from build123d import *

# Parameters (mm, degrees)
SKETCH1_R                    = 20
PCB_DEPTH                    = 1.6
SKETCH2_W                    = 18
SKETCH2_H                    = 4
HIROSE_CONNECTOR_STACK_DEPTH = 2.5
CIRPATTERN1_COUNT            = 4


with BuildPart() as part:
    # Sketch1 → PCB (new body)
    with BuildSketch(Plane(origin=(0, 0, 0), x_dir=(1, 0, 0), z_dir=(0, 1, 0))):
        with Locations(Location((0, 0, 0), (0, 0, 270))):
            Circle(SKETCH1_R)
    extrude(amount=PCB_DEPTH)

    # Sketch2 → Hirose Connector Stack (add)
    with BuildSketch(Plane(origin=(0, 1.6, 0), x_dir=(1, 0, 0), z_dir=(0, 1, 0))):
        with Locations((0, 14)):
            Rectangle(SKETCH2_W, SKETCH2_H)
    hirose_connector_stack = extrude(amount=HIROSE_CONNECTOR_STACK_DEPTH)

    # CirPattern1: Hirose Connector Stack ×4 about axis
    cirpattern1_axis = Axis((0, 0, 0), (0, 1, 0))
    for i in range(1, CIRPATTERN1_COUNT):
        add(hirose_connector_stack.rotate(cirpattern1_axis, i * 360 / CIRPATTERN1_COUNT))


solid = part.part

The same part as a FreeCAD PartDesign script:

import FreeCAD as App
import Part
import Sketcher

V = App.Vector
Q = App.Units.Quantity


def add_polygon(sketch, points):
    """Adds a closed chain of lines whose ends are joined by coincident constraints."""
    first, n = sketch.GeometryCount, len(points)
    for a, b in zip(points, points[1:] + points[:1]):
        sketch.addGeometry(Part.LineSegment(App.Vector(*a, 0), App.Vector(*b, 0)), False)
    for i in range(n):
        sketch.addConstraint(Sketcher.Constraint("Coincident", first + i, 2, first + (i + 1) % n, 1))

doc = App.newDocument("Part")
body = doc.addObject("PartDesign::Body", "Body")

# Sketch on XZ plane
sketch1 = doc.addObject("Sketcher::SketchObject", "Sketch")
body.addObject(sketch1)
sketch1.AttachmentSupport = (doc.XZ_Plane, [""])
sketch1.MapMode = "FlatFace"
sketch1.addGeometry(Part.Circle(V(0, 0, 0), V(0, 0, 1), 20), False)
sketch1.addConstraint([
    Sketcher.Constraint("Coincident", 0, 3, -1, 1),
    Sketcher.Constraint("Diameter", 0, Q("40 mm")),
])
pad1 = doc.addObject("PartDesign::Pad", "Pad")
body.addObject(pad1)
pad1.Profile = sketch1
pad1.Length = 1.6
pad1.Reversed = True

# Sketch on XZ plane
sketch2 = doc.addObject("Sketcher::SketchObject", "Sketch001")
body.addObject(sketch2)
sketch2.AttachmentSupport = (doc.XZ_Plane, [""])
sketch2.MapMode = "FlatFace"
sketch2.AttachmentOffset = App.Placement(V(0, 0, -1.6), App.Rotation())
add_polygon(sketch2, [(-9, -16), (-9, -12), (9, -12), (9, -16)])  # lines 0-3
sketch2.addConstraint([
    Sketcher.Constraint("Vertical", 0),
    Sketcher.Constraint("Horizontal", 1),
    Sketcher.Constraint("Vertical", 2),
    Sketcher.Constraint("Horizontal", 3),
    Sketcher.Constraint("DistanceX", 1, 1, 1, 2, Q("18 mm")),
    Sketcher.Constraint("DistanceY", 0, 1, 0, 2, Q("4 mm")),
    Sketcher.Constraint("DistanceX", 0, 2, -1, 1, Q("9 mm")),
    Sketcher.Constraint("DistanceY", 0, 2, -1, 1, Q("12 mm")),
])
pad2 = doc.addObject("PartDesign::Pad", "Pad001")
body.addObject(pad2)
pad2.Profile = sketch2
pad2.Length = 2.5
pad2.Reversed = True
doc.recompute()

polarpattern = doc.addObject("PartDesign::PolarPattern", "PolarPattern")
body.addObject(polarpattern)
polarpattern.Originals = [pad2]
polarpattern.Axis = (doc.Y_Axis, [""])
polarpattern.Angle = 360
polarpattern.Occurrences = 4
body.Tip = polarpattern

doc.recompute()
